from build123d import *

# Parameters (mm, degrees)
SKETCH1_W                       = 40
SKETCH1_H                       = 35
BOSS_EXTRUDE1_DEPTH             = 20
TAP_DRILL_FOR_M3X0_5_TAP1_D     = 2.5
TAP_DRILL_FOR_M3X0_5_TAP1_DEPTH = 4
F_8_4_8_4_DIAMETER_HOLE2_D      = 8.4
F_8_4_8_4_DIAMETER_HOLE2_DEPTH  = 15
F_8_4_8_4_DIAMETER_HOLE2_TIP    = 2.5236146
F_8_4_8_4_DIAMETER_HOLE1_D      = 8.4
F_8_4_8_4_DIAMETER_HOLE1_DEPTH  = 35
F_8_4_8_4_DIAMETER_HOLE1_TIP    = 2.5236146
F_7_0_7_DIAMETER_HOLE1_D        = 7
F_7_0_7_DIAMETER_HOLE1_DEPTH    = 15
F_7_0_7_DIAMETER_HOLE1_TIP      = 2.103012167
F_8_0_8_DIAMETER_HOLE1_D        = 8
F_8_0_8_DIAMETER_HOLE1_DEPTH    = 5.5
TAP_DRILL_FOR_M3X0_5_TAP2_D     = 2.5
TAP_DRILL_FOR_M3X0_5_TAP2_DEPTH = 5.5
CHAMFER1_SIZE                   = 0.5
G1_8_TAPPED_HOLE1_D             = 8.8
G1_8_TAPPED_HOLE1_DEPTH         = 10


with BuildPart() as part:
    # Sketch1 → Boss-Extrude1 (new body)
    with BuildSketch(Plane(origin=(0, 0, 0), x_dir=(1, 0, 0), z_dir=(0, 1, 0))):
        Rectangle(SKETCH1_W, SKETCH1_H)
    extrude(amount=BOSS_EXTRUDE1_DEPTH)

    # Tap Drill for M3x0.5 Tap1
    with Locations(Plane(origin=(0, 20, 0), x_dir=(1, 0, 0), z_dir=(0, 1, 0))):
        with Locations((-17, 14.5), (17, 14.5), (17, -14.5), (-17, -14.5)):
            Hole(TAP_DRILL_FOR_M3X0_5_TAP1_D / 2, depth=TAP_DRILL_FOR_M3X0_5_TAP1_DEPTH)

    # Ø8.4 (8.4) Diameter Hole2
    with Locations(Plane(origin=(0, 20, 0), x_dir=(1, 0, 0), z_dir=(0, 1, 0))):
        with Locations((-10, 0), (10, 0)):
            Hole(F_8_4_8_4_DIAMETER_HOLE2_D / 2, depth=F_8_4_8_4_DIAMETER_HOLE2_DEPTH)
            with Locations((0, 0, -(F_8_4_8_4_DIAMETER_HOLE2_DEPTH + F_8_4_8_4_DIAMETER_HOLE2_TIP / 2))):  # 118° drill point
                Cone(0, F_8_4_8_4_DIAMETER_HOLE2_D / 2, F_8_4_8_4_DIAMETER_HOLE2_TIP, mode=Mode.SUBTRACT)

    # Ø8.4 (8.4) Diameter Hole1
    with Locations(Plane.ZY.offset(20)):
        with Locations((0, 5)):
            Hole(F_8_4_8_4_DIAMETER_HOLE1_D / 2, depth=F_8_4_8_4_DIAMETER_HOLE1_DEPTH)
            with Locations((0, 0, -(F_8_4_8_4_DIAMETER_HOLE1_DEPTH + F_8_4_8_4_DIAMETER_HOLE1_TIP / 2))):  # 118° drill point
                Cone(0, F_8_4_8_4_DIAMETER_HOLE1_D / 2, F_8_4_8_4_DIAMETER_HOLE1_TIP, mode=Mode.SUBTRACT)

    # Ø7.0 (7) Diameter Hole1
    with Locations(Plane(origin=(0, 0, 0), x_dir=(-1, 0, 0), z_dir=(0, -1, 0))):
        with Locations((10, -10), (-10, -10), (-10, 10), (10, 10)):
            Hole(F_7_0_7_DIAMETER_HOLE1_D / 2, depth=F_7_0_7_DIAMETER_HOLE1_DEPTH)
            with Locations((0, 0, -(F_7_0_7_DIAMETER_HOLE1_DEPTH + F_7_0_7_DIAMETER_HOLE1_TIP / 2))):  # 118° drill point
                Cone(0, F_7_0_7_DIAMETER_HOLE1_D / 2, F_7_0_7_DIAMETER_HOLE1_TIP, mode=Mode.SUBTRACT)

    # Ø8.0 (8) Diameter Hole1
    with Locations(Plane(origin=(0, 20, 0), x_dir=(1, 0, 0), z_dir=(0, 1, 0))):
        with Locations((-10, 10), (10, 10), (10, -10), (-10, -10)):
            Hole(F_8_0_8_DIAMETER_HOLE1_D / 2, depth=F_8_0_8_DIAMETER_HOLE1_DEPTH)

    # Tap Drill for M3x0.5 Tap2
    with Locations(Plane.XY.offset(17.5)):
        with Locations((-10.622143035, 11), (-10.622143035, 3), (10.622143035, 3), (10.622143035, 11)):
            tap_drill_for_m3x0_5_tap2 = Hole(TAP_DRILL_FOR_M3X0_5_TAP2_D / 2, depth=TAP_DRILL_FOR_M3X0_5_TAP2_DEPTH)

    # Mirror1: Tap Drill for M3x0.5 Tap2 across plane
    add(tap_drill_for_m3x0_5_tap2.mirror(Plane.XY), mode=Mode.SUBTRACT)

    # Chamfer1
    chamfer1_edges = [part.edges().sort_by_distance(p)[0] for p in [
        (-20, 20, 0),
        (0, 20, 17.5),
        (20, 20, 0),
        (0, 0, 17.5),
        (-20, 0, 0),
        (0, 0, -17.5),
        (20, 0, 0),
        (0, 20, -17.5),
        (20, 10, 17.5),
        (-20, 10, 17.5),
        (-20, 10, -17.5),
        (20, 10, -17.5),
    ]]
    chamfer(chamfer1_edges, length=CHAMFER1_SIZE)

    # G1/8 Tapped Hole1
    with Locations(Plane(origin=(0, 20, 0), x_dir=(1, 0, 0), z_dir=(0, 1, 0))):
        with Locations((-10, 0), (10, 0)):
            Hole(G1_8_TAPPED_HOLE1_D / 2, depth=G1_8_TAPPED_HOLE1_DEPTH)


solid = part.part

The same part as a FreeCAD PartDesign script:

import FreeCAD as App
import Part
import Sketcher
from FreeCAD import Vector
Q = App.Units.Quantity


def edges_at(feature, points):
    """Names of the edges that pass closest to the given points."""
    edges = feature.Shape.Edges
    near = lambda p: min(range(len(edges)), key=lambda i: edges[i].distToShape(Part.Vertex(*p))[0])
    return sorted({f"Edge{near(p) + 1}" for p in points})

doc = App.newDocument("Part")
body = doc.addObject("PartDesign::Body", "Body")

sketch1 = body.newObject("Sketcher::SketchObject", "Sketch")
sketch1.AttachmentSupport = (doc.getObject("XZ_Plane"), [""])
sketch1.MapMode = "FlatFace"
sketch1.addGeometry([
    Part.LineSegment(Vector(-20, -18, 0), Vector(-20, 18, 0)),
    Part.LineSegment(Vector(-20, 18, 0), Vector(20, 18, 0)),
    Part.LineSegment(Vector(20, 18, 0), Vector(20, -18, 0)),
    Part.LineSegment(Vector(20, -18, 0), Vector(-20, -18, 0)),
], False)
sketch1.addConstraint([
    Sketcher.Constraint("Coincident", 0, 2, 1, 1),
    Sketcher.Constraint("Coincident", 1, 2, 2, 1),
    Sketcher.Constraint("Coincident", 2, 2, 3, 1),
    Sketcher.Constraint("Coincident", 3, 2, 0, 1),
    Sketcher.Constraint("Vertical", 0),
    Sketcher.Constraint("Horizontal", 1),
    Sketcher.Constraint("Vertical", 2),
    Sketcher.Constraint("Horizontal", 3),
    Sketcher.Constraint("Symmetric", 0, 2, 2, 2, -1, 1),
    Sketcher.Constraint("DistanceX", 1, 1, 1, 2, Q("40 mm")),
    Sketcher.Constraint("DistanceY", 0, 1, 0, 2, Q("35 mm")),
])
pad1 = body.newObject("PartDesign::Pad", "Pad")
pad1.Profile = sketch1
pad1.Length = 20
pad1.Reversed = True

sketch2 = body.newObject("Sketcher::SketchObject", "Sketch001")
sketch2.AttachmentSupport = (doc.getObject("XZ_Plane"), [""])
sketch2.MapMode = "FlatFace"
sketch2.AttachmentOffset = App.Placement(Vector(0, 0, -20), App.Rotation())
sketch2.addGeometry([
    Part.Circle(Vector(-17, -14.5, 0), Vector(0, 0, 1), 1.2),
    Part.Circle(Vector(17, -14.5, 0), Vector(0, 0, 1), 1.2),
    Part.Circle(Vector(17, 14.5, 0), Vector(0, 0, 1), 1.2),
    Part.Circle(Vector(-17, 14.5, 0), Vector(0, 0, 1), 1.2),
], False)
sketch2.addConstraint([
    Sketcher.Constraint("Equal", 0, 1),
    Sketcher.Constraint("Equal", 1, 2),
    Sketcher.Constraint("Equal", 2, 3),
    Sketcher.Constraint("Symmetric", 0, 3, 2, 3, -1, 1),
    Sketcher.Constraint("Symmetric", 1, 3, 3, 3, -1, 1),
    Sketcher.Constraint("Symmetric", 0, 3, 1, 3, -2),
    Sketcher.Constraint("Diameter", 0, Q("2.5 mm")),
    Sketcher.Constraint("DistanceX", 0, 3, -1, 1, Q("17 mm")),
    Sketcher.Constraint("DistanceY", 1, 3, 2, 3, Q("29 mm")),
])
doc.recompute()
hole = body.newObject("PartDesign::Hole", "Hole")
hole.Profile = sketch2
hole.ThreadType = "None"
hole.Diameter = 2.5
hole.DepthType = "Dimension"
hole.Depth = 4
hole.DrillPoint = "Flat"
hole.Reversed = True

sketch3 = body.newObject("Sketcher::SketchObject", "Sketch002")
sketch3.AttachmentSupport = (doc.getObject("XZ_Plane"), [""])
sketch3.MapMode = "FlatFace"
sketch3.AttachmentOffset = App.Placement(Vector(0, 0, -20), App.Rotation())
sketch3.addGeometry([
    Part.Circle(Vector(-10, 0, 0), Vector(0, 0, 1), 4.2),
    Part.Circle(Vector(10, 0, 0), Vector(0, 0, 1), 4.2),
], False)
sketch3.addConstraint([
    Sketcher.Constraint("Equal", 0, 1),
    Sketcher.Constraint("Symmetric", 0, 3, 1, 3, -1, 1),
    Sketcher.Constraint("PointOnObject", 0, 3, -1),
    Sketcher.Constraint("Diameter", 0, Q("8.4 mm")),
    Sketcher.Constraint("DistanceX", 0, 3, -1, 1, Q("10 mm")),
])
doc.recompute()
hole2 = body.newObject("PartDesign::Hole", "Hole001")
hole2.Profile = sketch3
hole2.ThreadType = "None"
hole2.Diameter = 8.4
hole2.DepthType = "Dimension"
hole2.Depth = 15
hole2.DrillPoint = "Angled"
hole2.DrillPointAngle = 118
hole2.Reversed = True

sketch4 = body.newObject("Sketcher::SketchObject", "Sketch003")
sketch4.AttachmentSupport = (doc.getObject("YZ_Plane"), [""])
sketch4.MapMode = "FlatFace"
sketch4.AttachmentOffset = App.Placement(Vector(0, 0, -20), App.Rotation())
sketch4.addGeometry(Part.Circle(Vector(5, 0, 0), Vector(0, 0, 1), 4.2), False)
sketch4.addConstraint([
    Sketcher.Constraint("PointOnObject", 0, 3, -1),
    Sketcher.Constraint("Diameter", 0, Q("8.4 mm")),
    Sketcher.Constraint("DistanceX", -1, 1, 0, 3, Q("5 mm")),
])
doc.recompute()
hole3 = body.newObject("PartDesign::Hole", "Hole002")
hole3.Profile = sketch4
hole3.ThreadType = "None"
hole3.Diameter = 8.4
hole3.DepthType = "Dimension"
hole3.Depth = 35
hole3.DrillPoint = "Angled"
hole3.DrillPointAngle = 118
hole3.Reversed = True

sketch5 = body.newObject("Sketcher::SketchObject", "Sketch004")
sketch5.AttachmentSupport = (doc.getObject("XZ_Plane"), [""])
sketch5.MapMode = "FlatFace"
sketch5.addGeometry([
    Part.Circle(Vector(-10, 10, 0), Vector(0, 0, 1), 3.5),
    Part.Circle(Vector(10, 10, 0), Vector(0, 0, 1), 3.5),
    Part.Circle(Vector(10, -10, 0), Vector(0, 0, 1), 3.5),
    Part.Circle(Vector(-10, -10, 0), Vector(0, 0, 1), 3.5),
], False)
sketch5.addConstraint([
    Sketcher.Constraint("Equal", 0, 1),
    Sketcher.Constraint("Equal", 1, 2),
    Sketcher.Constraint("Equal", 2, 3),
    Sketcher.Constraint("Symmetric", 0, 3, 2, 3, -1, 1),
    Sketcher.Constraint("Symmetric", 1, 3, 3, 3, -1, 1),
    Sketcher.Constraint("Symmetric", 0, 3, 1, 3, -2),
    Sketcher.Constraint("Diameter", 0, Q("7 mm")),
    Sketcher.Constraint("DistanceX", 0, 3, -1, 1, Q("10 mm")),
    Sketcher.Constraint("DistanceY", -1, 1, 0, 3, Q("10 mm")),
])
doc.recompute()
hole4 = body.newObject("PartDesign::Hole", "Hole003")
hole4.Profile = sketch5
hole4.ThreadType = "None"
hole4.Diameter = 7
hole4.DepthType = "Dimension"
hole4.Depth = 15
hole4.DrillPoint = "Angled"
hole4.DrillPointAngle = 118

sketch6 = body.newObject("Sketcher::SketchObject", "Sketch005")
sketch6.AttachmentSupport = (doc.getObject("XZ_Plane"), [""])
sketch6.MapMode = "FlatFace"
sketch6.AttachmentOffset = App.Placement(Vector(0, 0, -20), App.Rotation())
sketch6.addGeometry([
    Part.Circle(Vector(-10, -10, 0), Vector(0, 0, 1), 4),
    Part.Circle(Vector(10, -10, 0), Vector(0, 0, 1), 4),
    Part.Circle(Vector(10, 10, 0), Vector(0, 0, 1), 4),
    Part.Circle(Vector(-10, 10, 0), Vector(0, 0, 1), 4),
], False)
sketch6.addConstraint([
    Sketcher.Constraint("Equal", 0, 1),
    Sketcher.Constraint("Equal", 1, 2),
    Sketcher.Constraint("Equal", 2, 3),
    Sketcher.Constraint("Symmetric", 0, 3, 2, 3, -1, 1),
    Sketcher.Constraint("Symmetric", 1, 3, 3, 3, -1, 1),
    Sketcher.Constraint("Symmetric", 0, 3, 1, 3, -2),
    Sketcher.Constraint("Diameter", 0, Q("8 mm")),
    Sketcher.Constraint("DistanceX", 0, 3, -1, 1, Q("10 mm")),
    Sketcher.Constraint("DistanceY", 0, 3, -1, 1, Q("10 mm")),
])
doc.recompute()
hole5 = body.newObject("PartDesign::Hole", "Hole004")
hole5.Profile = sketch6
hole5.ThreadType = "None"
hole5.Diameter = 8
hole5.DepthType = "Dimension"
hole5.Depth = 5.5
hole5.DrillPoint = "Flat"
hole5.Reversed = True

sketch7 = body.newObject("Sketcher::SketchObject", "Sketch006")
sketch7.AttachmentSupport = (doc.getObject("XY_Plane"), [""])
sketch7.MapMode = "FlatFace"
sketch7.AttachmentOffset = App.Placement(Vector(0, 0, 17.5), App.Rotation())
sketch7.addGeometry([
    Part.Circle(Vector(-10.6, 11, 0), Vector(0, 0, 1), 1.2),
    Part.Circle(Vector(-10.6, 3, 0), Vector(0, 0, 1), 1.2),
    Part.Circle(Vector(10.6, 3, 0), Vector(0, 0, 1), 1.2),
    Part.Circle(Vector(10.6, 11, 0), Vector(0, 0, 1), 1.2),
], False)
sketch7.addConstraint([
    Sketcher.Constraint("Equal", 0, 1),
    Sketcher.Constraint("Equal", 1, 2),
    Sketcher.Constraint("Equal", 2, 3),
    Sketcher.Constraint("Symmetric", 1, 3, 2, 3, -2),
    Sketcher.Constraint("Symmetric", 0, 3, 3, 3, -2),
    Sketcher.Constraint("Vertical", 0, 3, 1, 3),
    Sketcher.Constraint("Diameter", 0, Q("2.5 mm")),
    Sketcher.Constraint("DistanceY", -1, 1, 0, 3, Q("11 mm")),
    Sketcher.Constraint("DistanceY", -1, 1, 1, 3, Q("3 mm")),
    Sketcher.Constraint("DistanceX", 0, 3, -1, 1, Q("10.622143 mm")),
])
doc.recompute()
hole6 = body.newObject("PartDesign::Hole", "Hole005")
hole6.Profile = sketch7
hole6.ThreadType = "None"
hole6.Diameter = 2.5
hole6.DepthType = "Dimension"
hole6.Depth = 5.5
hole6.DrillPoint = "Flat"
doc.recompute()

mirrored = body.newObject("PartDesign::Mirrored", "Mirrored")
mirrored.Originals = [hole6]
mirrored.MirrorPlane = (doc.getObject("XY_Plane"), [""])
body.Tip = mirrored
doc.recompute()

chamfer = body.newObject("PartDesign::Chamfer", "Chamfer")
chamfer.Base = (mirrored, edges_at(mirrored, [
    (-20, 20, 0),
    (0, 20, 17.5),
    (20, 20, 0),
    (0, 0, 17.5),
    (-20, 0, 0),
    (0, 0, -17.5),
    (20, 0, 0),
    (0, 20, -17.5),
    (20, 10, 17.5),
    (-20, 10, 17.5),
    (-20, 10, -17.5),
    (20, 10, -17.5),
]))
chamfer.Size = 0.5

sketch8 = body.newObject("Sketcher::SketchObject", "Sketch007")
sketch8.AttachmentSupport = (doc.getObject("XZ_Plane"), [""])
sketch8.MapMode = "FlatFace"
sketch8.AttachmentOffset = App.Placement(Vector(0, 0, -20), App.Rotation())
sketch8.addGeometry([
    Part.Circle(Vector(-10, 0, 0), Vector(0, 0, 1), 4.4),
    Part.Circle(Vector(10, 0, 0), Vector(0, 0, 1), 4.4),
], False)
sketch8.addConstraint([
    Sketcher.Constraint("Equal", 0, 1),
    Sketcher.Constraint("Symmetric", 0, 3, 1, 3, -1, 1),
    Sketcher.Constraint("PointOnObject", 0, 3, -1),
    Sketcher.Constraint("Diameter", 0, Q("8.8 mm")),
    Sketcher.Constraint("DistanceX", 0, 3, -1, 1, Q("10 mm")),
])
doc.recompute()
hole7 = body.newObject("PartDesign::Hole", "Hole006")
hole7.Profile = sketch8
hole7.ThreadType = "None"
hole7.Diameter = 8.8
hole7.DepthType = "Dimension"
hole7.Depth = 10
hole7.DrillPoint = "Flat"
hole7.Reversed = True

doc.recompute()
